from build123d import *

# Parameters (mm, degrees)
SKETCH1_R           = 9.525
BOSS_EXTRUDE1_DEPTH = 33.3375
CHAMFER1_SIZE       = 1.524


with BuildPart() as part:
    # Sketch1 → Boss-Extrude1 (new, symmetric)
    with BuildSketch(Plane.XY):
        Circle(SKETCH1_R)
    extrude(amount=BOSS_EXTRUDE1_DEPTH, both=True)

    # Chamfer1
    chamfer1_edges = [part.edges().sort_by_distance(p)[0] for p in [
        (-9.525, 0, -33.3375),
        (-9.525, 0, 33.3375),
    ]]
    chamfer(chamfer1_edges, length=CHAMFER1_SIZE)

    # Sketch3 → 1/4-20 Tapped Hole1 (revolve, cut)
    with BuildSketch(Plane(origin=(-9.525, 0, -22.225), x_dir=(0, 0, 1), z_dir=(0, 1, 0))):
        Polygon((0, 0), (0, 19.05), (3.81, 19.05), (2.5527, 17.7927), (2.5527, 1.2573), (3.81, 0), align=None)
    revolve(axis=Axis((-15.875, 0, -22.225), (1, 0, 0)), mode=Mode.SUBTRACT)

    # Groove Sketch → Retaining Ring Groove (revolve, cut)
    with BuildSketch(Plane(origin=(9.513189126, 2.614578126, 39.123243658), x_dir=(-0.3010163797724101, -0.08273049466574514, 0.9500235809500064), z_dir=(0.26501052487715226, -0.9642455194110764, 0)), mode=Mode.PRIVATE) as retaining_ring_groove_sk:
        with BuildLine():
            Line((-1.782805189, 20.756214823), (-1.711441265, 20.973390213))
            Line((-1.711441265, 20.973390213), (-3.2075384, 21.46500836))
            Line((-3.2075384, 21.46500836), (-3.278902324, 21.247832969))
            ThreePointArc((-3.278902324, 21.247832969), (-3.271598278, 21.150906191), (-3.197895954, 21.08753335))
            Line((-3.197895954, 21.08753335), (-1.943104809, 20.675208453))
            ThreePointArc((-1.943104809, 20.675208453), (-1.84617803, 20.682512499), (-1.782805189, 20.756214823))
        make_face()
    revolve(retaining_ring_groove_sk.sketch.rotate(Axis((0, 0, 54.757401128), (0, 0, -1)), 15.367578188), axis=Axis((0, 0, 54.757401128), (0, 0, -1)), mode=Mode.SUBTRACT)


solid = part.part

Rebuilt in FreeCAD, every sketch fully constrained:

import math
import FreeCAD as App
import Part
import Sketcher
from FreeCAD import Vector
Q = App.Units.Quantity


def edges_at(feature, points):
    """Names of the edges that pass closest to the given points."""
    edges = feature.Shape.Edges
    near = lambda p: min(range(len(edges)), key=lambda i: edges[i].distToShape(Part.Vertex(*p))[0])
    return sorted({f"Edge{near(p) + 1}" for p in points})

doc = App.newDocument("Part")
body = doc.addObject("PartDesign::Body", "Body")

# Sketch on XY plane
sketch1 = doc.addObject("Sketcher::SketchObject", "Sketch")
body.addObject(sketch1)
sketch1.AttachmentSupport = (doc.XY_Plane, [""])
sketch1.MapMode = "FlatFace"
sketch1.addGeometry(Part.Circle(Vector(0, 0, 0), Vector(0, 0, 1), 9.525), False)
sketch1.addConstraint([
    Sketcher.Constraint("Coincident", 0, 3, -1, 1),
    Sketcher.Constraint("Diameter", 0, Q("0.75 in")),
])
pad1 = doc.addObject("PartDesign::Pad", "Pad")
body.addObject(pad1)
pad1.Profile = sketch1
pad1.Length = Q("2.625 in")
pad1.Midplane = True
doc.recompute()

chamfer = doc.addObject("PartDesign::Chamfer", "Chamfer")
body.addObject(chamfer)
chamfer.Base = (pad1, edges_at(pad1, [(-9.525, 0, -33.337), (-9.525, 0, 33.337)]))
chamfer.Size = Q("0.06 in")

# Sketch on XZ plane
sketch2 = doc.addObject("Sketcher::SketchObject", "Sketch001")
body.addObject(sketch2)
sketch2.AttachmentSupport = (doc.XZ_Plane, [""])
sketch2.MapMode = "FlatFace"
sketch2.addGeometry([
    Part.LineSegment(Vector(9.525, -22.225, 0), Vector(-9.525, -22.225, 0)),  # 0
    Part.LineSegment(Vector(-9.525, -22.225, 0), Vector(-9.525, -18.415, 0)),  # 1
    Part.LineSegment(Vector(-9.525, -18.415, 0), Vector(-8.2677, -19.6723, 0)),  # 2
    Part.LineSegment(Vector(-8.2677, -19.6723, 0), Vector(8.2677, -19.6723, 0)),  # 3
    Part.LineSegment(Vector(8.2677, -19.6723, 0), Vector(9.525, -18.415, 0)),  # 4
    Part.LineSegment(Vector(9.525, -18.415, 0), Vector(9.525, -22.225, 0)),  # 5
], False)
sketch2.addGeometry(Part.LineSegment(Vector(-9.525, -22.225, 0), Vector(9.525, -22.225, 0)), True)  # axis
sketch2.addConstraint([
    Sketcher.Constraint("Coincident", 0, 2, 1, 1),
    Sketcher.Constraint("Coincident", 1, 2, 2, 1),
    Sketcher.Constraint("Coincident", 2, 2, 3, 1),
    Sketcher.Constraint("Coincident", 3, 2, 4, 1),
    Sketcher.Constraint("Coincident", 4, 2, 5, 1),
    Sketcher.Constraint("Coincident", 5, 2, 0, 1),
    Sketcher.Constraint("Horizontal", 0),
    Sketcher.Constraint("Vertical", 1),
    Sketcher.Constraint("Horizontal", 3),
    Sketcher.Constraint("Vertical", 5),
    Sketcher.Constraint("Horizontal", 6),
    Sketcher.Constraint("Coincident", 6, 1, 0, 2),
    Sketcher.Constraint("Symmetric", 1, 2, 4, 2, -2),
    Sketcher.Constraint("Perpendicular", 2, 4),
    Sketcher.Constraint("Vertical", 4, 2, 6, 2),
    Sketcher.Constraint("Equal", 2, 4),
    Sketcher.Constraint("DistanceX", 0, 2, 0, 1, Q("0.75 in")),
    Sketcher.Constraint("DistanceY", 1, 1, 1, 2, Q("0.15 in")),
    Sketcher.Constraint("DistanceX", 3, 1, 3, 2, Q("0.651 in")),
    Sketcher.Constraint("DistanceY", 0, 2, -1, 1, Q("0.875 in")),
])
groove = doc.addObject("PartDesign::Groove", "Groove")
body.addObject(groove)
groove.Profile = sketch2
groove.ReferenceAxis = (sketch2, ["Axis0"])
groove.Angle = 360

# Sketch on an angled plane
sketch3 = doc.addObject("Sketcher::SketchObject", "Sketch002")
body.addObject(sketch3)
sketch3.Placement = App.Placement(Vector(9.513189, 2.614578, 39.123244), App.Rotation(Vector(-0.30101638, -0.082730495, 0.950023581), Vector(-0.916055981, -0.251766248, -0.312178147), Vector(0.265010525, -0.964245519, 0), "ZXY"))
sketch3.addGeometry([
    Part.LineSegment(Vector(-1.782805, 20.756215, 0), Vector(-1.711441, 20.97339, 0)),  # 0
    Part.LineSegment(Vector(-1.711441, 20.97339, 0), Vector(-3.207538, 21.465008, 0)),  # 1
    Part.LineSegment(Vector(-3.207538, 21.465008, 0), Vector(-3.278902, 21.247833, 0)),  # 2
    Part.ArcOfCircle(Part.Circle(Vector(-3.158249, 21.208186, 0), Vector(0, 0, 1), 0.127), math.radians(161.809454), math.radians(251.809456)),  # 3
    Part.LineSegment(Vector(-3.197896, 21.087533, 0), Vector(-1.943105, 20.675208, 0)),  # 4
    Part.ArcOfCircle(Part.Circle(Vector(-1.903458, 20.795861, 0), Vector(0, 0, 1), 0.127), math.radians(-108.190546), math.radians(-18.190544)),  # 5
], False)
sketch3.addGeometry(Part.LineSegment(Vector(-4.684938, 11.924416, 0), Vector(-6.181035, 12.416034, 0)), True)  # axis
sketch3.addConstraint([
    Sketcher.Constraint("Coincident", 0, 2, 1, 1),
    Sketcher.Constraint("Coincident", 1, 2, 2, 1),
    Sketcher.Constraint("Tangent", 2, 2, 3, 1),
    Sketcher.Constraint("Tangent", 3, 2, 4, 1),
    Sketcher.Constraint("Tangent", 4, 2, 5, 1),
    Sketcher.Constraint("Tangent", 5, 2, 0, 1),
    Sketcher.Constraint("Equal", 3, 5),
    Sketcher.Constraint("Perpendicular", 0, 1),
    Sketcher.Constraint("Perpendicular", 1, 2),
    Sketcher.Constraint("Perpendicular", 2, 4),
    Sketcher.Constraint("Parallel", 4, 6),
    Sketcher.Constraint("Equal", 1, 6),
    Sketcher.Constraint("Radius", 3, Q("0.005 in")),
    Sketcher.Constraint("Distance", 0, Q("0.009 in")),
    Sketcher.Constraint("Distance", 1, Q("0.062 in")),
    Sketcher.Constraint("DistanceX", 4, 2, -1, 1, Q("0.0765002 in")),
    Sketcher.Constraint("DistanceY", 3, 2, 2, 2, Q("0.1603 mm")),
    Sketcher.Constraint("DistanceY", 6, 1, 5, 2, Q("8.831799 mm")),
    Sketcher.Constraint("DistanceY", -1, 1, 5, 3, Q("20.795861 mm")),
    Sketcher.Constraint("DistanceX", 6, 1, -1, 1, Q("4.684938 mm")),
])
groove2 = doc.addObject("PartDesign::Groove", "Groove001")
body.addObject(groove2)
groove2.Profile = sketch3
groove2.ReferenceAxis = (sketch3, ["Axis0"])
groove2.Angle = 360

doc.recompute()
